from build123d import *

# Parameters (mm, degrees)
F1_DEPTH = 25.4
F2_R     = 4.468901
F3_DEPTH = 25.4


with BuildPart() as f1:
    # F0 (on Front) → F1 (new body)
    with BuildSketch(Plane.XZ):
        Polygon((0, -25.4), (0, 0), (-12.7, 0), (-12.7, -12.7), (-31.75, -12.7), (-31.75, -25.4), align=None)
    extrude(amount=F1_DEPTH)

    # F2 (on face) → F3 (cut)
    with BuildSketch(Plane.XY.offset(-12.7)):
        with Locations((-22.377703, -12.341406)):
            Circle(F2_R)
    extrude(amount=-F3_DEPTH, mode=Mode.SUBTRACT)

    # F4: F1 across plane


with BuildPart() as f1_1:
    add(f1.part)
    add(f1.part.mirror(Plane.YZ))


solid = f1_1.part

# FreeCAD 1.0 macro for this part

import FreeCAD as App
import Part
import Sketcher

V = App.Vector
Q = App.Units.Quantity

doc = App.newDocument("Part")
body = doc.addObject("PartDesign::Body", "Body")

# Sketch on XZ plane
sketch1 = body.newObject("Sketcher::SketchObject", "Sketch")
sketch1.AttachmentSupport = (doc.getObject("XZ_Plane"), [""])
sketch1.MapMode = "FlatFace"
sketch1.addGeometry([
    Part.LineSegment(V(0, -25, 0), V(0, 0, 0)),  # 0
    Part.LineSegment(V(0, 0, 0), V(-13, 0, 0)),  # 1
    Part.LineSegment(V(-13, 0, 0), V(-13, -13, 0)),  # 2
    Part.LineSegment(V(-13, -13, 0), V(-32, -13, 0)),  # 3
    Part.LineSegment(V(-32, -13, 0), V(-32, -25, 0)),  # 4
    Part.LineSegment(V(-32, -25, 0), V(0, -25, 0)),  # 5
], False)
sketch1.addConstraint([
    Sketcher.Constraint("Coincident", 0, 2, 1, 1),
    Sketcher.Constraint("Coincident", 1, 2, 2, 1),
    Sketcher.Constraint("Coincident", 2, 2, 3, 1),
    Sketcher.Constraint("Coincident", 3, 2, 4, 1),
    Sketcher.Constraint("Coincident", 4, 2, 5, 1),
    Sketcher.Constraint("Coincident", 5, 2, 0, 1),
    Sketcher.Constraint("Vertical", 0),
    Sketcher.Constraint("Horizontal", 1),
    Sketcher.Constraint("Vertical", 2),
    Sketcher.Constraint("Horizontal", 3),
    Sketcher.Constraint("Vertical", 4),
    Sketcher.Constraint("Horizontal", 5),
    Sketcher.Constraint("Coincident", 0, 2, -1, 1),
    Sketcher.Constraint("Equal", 1, 2),
    Sketcher.Constraint("Equal", 2, 4),
    Sketcher.Constraint("DistanceY", 0, 1, 0, 2, Q("1 in")),
    Sketcher.Constraint("DistanceX", 3, 2, 3, 1, Q("0.75 in")),
])
pad1 = body.newObject("PartDesign::Pad", "Pad")
pad1.Profile = sketch1
pad1.Length = Q("1 in")

# Sketch on XY plane
sketch2 = body.newObject("Sketcher::SketchObject", "Sketch001")
sketch2.AttachmentSupport = (doc.getObject("XY_Plane"), [""])
sketch2.MapMode = "FlatFace"
sketch2.AttachmentOffset = App.Placement(V(0, 0, -0.5 * 25.4), App.Rotation())
sketch2.addGeometry(Part.Circle(V(-22.4, -12.3, 0), V(0, 0, 1), 4.5), False)
sketch2.addConstraint([
    Sketcher.Constraint("Diameter", 0, 8.937802),
    Sketcher.Constraint("DistanceX", 0, 3, -1, 1, 22.377703),
    Sketcher.Constraint("DistanceY", 0, 3, -1, 1, 12.341406),
])
pocket1 = body.newObject("PartDesign::Pocket", "Pocket")
pocket1.Profile = sketch2
pocket1.Length = Q("1 in")
body2 = doc.addObject("PartDesign::Body", "Body001")
doc.recompute()

body2.BaseFeature = body
doc.recompute()

mirroring = doc.addObject("Part::Mirroring", "Mirroring")
mirroring.Source = body
mirroring.Base = V(0, 0, 0)
mirroring.Normal = V(1, 0, 0)
body3 = doc.addObject("PartDesign::Body", "Body002")
body3.BaseFeature = mirroring
boolean = body2.newObject("PartDesign::Boolean", "Boolean")
boolean.Type = "Fuse"
boolean.addObjects([body3])
doc.recompute()
mirroring.Visibility = False

doc.recompute()
